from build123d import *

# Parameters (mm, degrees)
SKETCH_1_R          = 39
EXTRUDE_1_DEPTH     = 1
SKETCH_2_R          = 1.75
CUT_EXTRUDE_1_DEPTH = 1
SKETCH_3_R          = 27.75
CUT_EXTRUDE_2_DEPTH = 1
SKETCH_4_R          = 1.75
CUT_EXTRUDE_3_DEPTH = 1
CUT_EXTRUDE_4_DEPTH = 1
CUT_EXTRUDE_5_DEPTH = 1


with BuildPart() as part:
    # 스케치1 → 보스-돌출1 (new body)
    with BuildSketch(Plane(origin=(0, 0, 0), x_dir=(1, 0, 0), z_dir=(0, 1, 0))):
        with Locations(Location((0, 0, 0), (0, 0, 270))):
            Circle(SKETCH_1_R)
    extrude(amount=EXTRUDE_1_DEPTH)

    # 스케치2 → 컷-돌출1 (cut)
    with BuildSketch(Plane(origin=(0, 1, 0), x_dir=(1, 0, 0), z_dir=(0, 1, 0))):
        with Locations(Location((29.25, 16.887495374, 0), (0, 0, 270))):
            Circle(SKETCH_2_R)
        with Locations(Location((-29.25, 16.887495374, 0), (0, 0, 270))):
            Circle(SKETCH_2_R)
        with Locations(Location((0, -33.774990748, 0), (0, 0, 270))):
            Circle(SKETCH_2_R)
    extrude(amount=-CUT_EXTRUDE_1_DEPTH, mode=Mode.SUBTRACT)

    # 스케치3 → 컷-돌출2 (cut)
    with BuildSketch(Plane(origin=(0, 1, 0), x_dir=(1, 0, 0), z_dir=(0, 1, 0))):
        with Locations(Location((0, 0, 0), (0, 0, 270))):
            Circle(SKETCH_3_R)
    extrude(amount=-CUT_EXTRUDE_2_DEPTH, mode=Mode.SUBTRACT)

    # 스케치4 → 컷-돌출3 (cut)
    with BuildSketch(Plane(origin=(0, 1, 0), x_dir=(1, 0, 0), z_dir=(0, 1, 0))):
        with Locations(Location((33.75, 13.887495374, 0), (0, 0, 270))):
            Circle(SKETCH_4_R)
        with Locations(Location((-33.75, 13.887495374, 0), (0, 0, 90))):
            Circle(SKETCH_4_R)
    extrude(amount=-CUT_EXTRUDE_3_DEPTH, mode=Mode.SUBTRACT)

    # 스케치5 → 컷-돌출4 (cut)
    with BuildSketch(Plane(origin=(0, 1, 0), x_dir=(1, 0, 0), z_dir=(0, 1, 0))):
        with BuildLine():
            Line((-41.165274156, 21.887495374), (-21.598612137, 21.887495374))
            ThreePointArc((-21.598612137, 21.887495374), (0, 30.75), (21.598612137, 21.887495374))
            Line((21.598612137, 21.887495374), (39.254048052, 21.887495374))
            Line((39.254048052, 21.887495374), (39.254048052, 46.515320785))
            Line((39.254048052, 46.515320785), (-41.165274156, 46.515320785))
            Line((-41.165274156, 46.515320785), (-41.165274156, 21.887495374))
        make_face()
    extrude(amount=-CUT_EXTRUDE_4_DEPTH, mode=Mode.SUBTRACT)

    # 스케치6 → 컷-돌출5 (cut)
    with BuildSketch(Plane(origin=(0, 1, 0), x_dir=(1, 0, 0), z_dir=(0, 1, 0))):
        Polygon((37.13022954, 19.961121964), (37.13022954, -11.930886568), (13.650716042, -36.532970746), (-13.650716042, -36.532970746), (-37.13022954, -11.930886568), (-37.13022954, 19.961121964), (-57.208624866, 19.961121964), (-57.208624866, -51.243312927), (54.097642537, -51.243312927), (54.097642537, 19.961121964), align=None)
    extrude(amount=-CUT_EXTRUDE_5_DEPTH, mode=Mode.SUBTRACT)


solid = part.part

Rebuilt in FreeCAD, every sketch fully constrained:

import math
import FreeCAD as App
import Part
import Sketcher


def add_polygon(sketch, points):
    """Adds a closed chain of lines whose ends are joined by coincident constraints."""
    first, n = sketch.GeometryCount, len(points)
    for a, b in zip(points, points[1:] + points[:1]):
        sketch.addGeometry(Part.LineSegment(App.Vector(*a, 0), App.Vector(*b, 0)), False)
    for i in range(n):
        sketch.addConstraint(Sketcher.Constraint("Coincident", first + i, 2, first + (i + 1) % n, 1))

doc = App.newDocument("Part")
body = doc.addObject("PartDesign::Body", "Body")

sketch1 = body.newObject("Sketcher::SketchObject", "Sketch")
sketch1.AttachmentSupport = (doc.getObject("XZ_Plane"), [""])
sketch1.MapMode = "FlatFace"
sketch1.addGeometry(Part.Circle(App.Vector(0, 0, 0), App.Vector(0, 0, 1), 39), False)
sketch1.addConstraint([
    Sketcher.Constraint("Coincident", 0, 3, -1, 1),
    Sketcher.Constraint("Diameter", 0, 78.0),
])
pad1 = body.newObject("PartDesign::Pad", "Pad")
pad1.Profile = sketch1
pad1.Length = 1
pad1.Reversed = True

sketch2 = body.newObject("Sketcher::SketchObject", "Sketch001")
sketch2.AttachmentSupport = (doc.getObject("XZ_Plane"), [""])
sketch2.MapMode = "FlatFace"
sketch2.AttachmentOffset = App.Placement(App.Vector(0, 0, -1), App.Rotation())
sketch2.addGeometry([
    Part.Circle(App.Vector(29.25, -16.887495, 0), App.Vector(0, 0, 1), 1.75),
    Part.Circle(App.Vector(-29.25, -16.887495, 0), App.Vector(0, 0, 1), 1.75),
    Part.Circle(App.Vector(0, 33.774991, 0), App.Vector(0, 0, 1), 1.75),
], False)
sketch2.addConstraint([
    Sketcher.Constraint("Equal", 0, 1),
    Sketcher.Constraint("Equal", 1, 2),
    Sketcher.Constraint("Symmetric", 0, 3, 1, 3, -2),
    Sketcher.Constraint("PointOnObject", 2, 3, -2),
    Sketcher.Constraint("Diameter", 0, 3.5),
    Sketcher.Constraint("DistanceX", 1, 3, 0, 3, 58.5),
    Sketcher.Constraint("DistanceY", -1, 1, 2, 3, 33.774991),
    Sketcher.Constraint("DistanceY", 0, 3, -1, 1, 16.887495),
])
pocket1 = body.newObject("PartDesign::Pocket", "Pocket")
pocket1.Profile = sketch2
pocket1.Length = 1
pocket1.Reversed = True

sketch3 = body.newObject("Sketcher::SketchObject", "Sketch002")
sketch3.AttachmentSupport = (doc.getObject("XZ_Plane"), [""])
sketch3.MapMode = "FlatFace"
sketch3.AttachmentOffset = App.Placement(App.Vector(0, 0, -1), App.Rotation())
sketch3.addGeometry(Part.Circle(App.Vector(0, 0, 0), App.Vector(0, 0, 1), 27.75), False)
sketch3.addConstraint([
    Sketcher.Constraint("Coincident", 0, 3, -1, 1),
    Sketcher.Constraint("Diameter", 0, 55.5),
])
pocket2 = body.newObject("PartDesign::Pocket", "Pocket001")
pocket2.Profile = sketch3
pocket2.Length = 1
pocket2.Reversed = True

sketch4 = body.newObject("Sketcher::SketchObject", "Sketch003")
sketch4.AttachmentSupport = (doc.getObject("XZ_Plane"), [""])
sketch4.MapMode = "FlatFace"
sketch4.AttachmentOffset = App.Placement(App.Vector(0, 0, -1), App.Rotation())
sketch4.addGeometry([
    Part.Circle(App.Vector(33.75, -13.887495, 0), App.Vector(0, 0, 1), 1.75),
    Part.Circle(App.Vector(-33.75, -13.887495, 0), App.Vector(0, 0, 1), 1.75),
], False)
sketch4.addConstraint([
    Sketcher.Constraint("Equal", 0, 1),
    Sketcher.Constraint("Symmetric", 0, 3, 1, 3, -2),
    Sketcher.Constraint("Diameter", 0, 3.5),
    Sketcher.Constraint("DistanceX", 1, 3, 0, 3, 67.5),
    Sketcher.Constraint("DistanceY", 0, 3, -1, 1, 13.887495),
])
pocket3 = body.newObject("PartDesign::Pocket", "Pocket002")
pocket3.Profile = sketch4
pocket3.Length = 1
pocket3.Reversed = True

sketch5 = body.newObject("Sketcher::SketchObject", "Sketch004")
sketch5.AttachmentSupport = (doc.getObject("XZ_Plane"), [""])
sketch5.MapMode = "FlatFace"
sketch5.AttachmentOffset = App.Placement(App.Vector(0, 0, -1), App.Rotation())
sketch5.addGeometry([
    Part.LineSegment(App.Vector(-41.165274, -21.887495, 0), App.Vector(-21.598612, -21.887495, 0)),
    Part.ArcOfCircle(Part.Circle(App.Vector(0, 0, 0), App.Vector(0, 0, 1), 30.75), math.radians(-134.619383), math.radians(-45.380617)),
    Part.LineSegment(App.Vector(21.598612, -21.887495, 0), App.Vector(39.254048, -21.887495, 0)),
    Part.LineSegment(App.Vector(39.254048, -21.887495, 0), App.Vector(39.254048, -46.515321, 0)),
    Part.LineSegment(App.Vector(39.254048, -46.515321, 0), App.Vector(-41.165274, -46.515321, 0)),
    Part.LineSegment(App.Vector(-41.165274, -46.515321, 0), App.Vector(-41.165274, -21.887495, 0)),
], False)
sketch5.addConstraint([
    Sketcher.Constraint("Coincident", 0, 2, 1, 1),
    Sketcher.Constraint("Coincident", 1, 2, 2, 1),
    Sketcher.Constraint("Coincident", 2, 2, 3, 1),
    Sketcher.Constraint("Coincident", 3, 2, 4, 1),
    Sketcher.Constraint("Coincident", 4, 2, 5, 1),
    Sketcher.Constraint("Coincident", 5, 2, 0, 1),
    Sketcher.Constraint("Horizontal", 0),
    Sketcher.Constraint("Horizontal", 2),
    Sketcher.Constraint("Vertical", 3),
    Sketcher.Constraint("Horizontal", 4),
    Sketcher.Constraint("Vertical", 5),
    Sketcher.Constraint("Coincident", 1, 3, -1, 1),
    Sketcher.Constraint("Horizontal", 0, 2, 1, 2),
    Sketcher.Constraint("Radius", 1, 30.75),
    Sketcher.Constraint("DistanceX", 0, 1, 0, 2, 19.566662),
    Sketcher.Constraint("DistanceX", 2, 1, 2, 2, 17.655436),
    Sketcher.Constraint("DistanceX", 4, 2, 4, 1, 80.419322),
    Sketcher.Constraint("DistanceY", 3, 2, 3, 1, 24.627825),
])
pocket4 = body.newObject("PartDesign::Pocket", "Pocket003")
pocket4.Profile = sketch5
pocket4.Length = 1
pocket4.Reversed = True

sketch6 = body.newObject("Sketcher::SketchObject", "Sketch005")
sketch6.AttachmentSupport = (doc.getObject("XZ_Plane"), [""])
sketch6.MapMode = "FlatFace"
sketch6.AttachmentOffset = App.Placement(App.Vector(0, 0, -1), App.Rotation())
add_polygon(sketch6, [(37.13023, -19.961122), (37.13023, 11.930887), (13.650716, 36.532971), (-13.650716, 36.532971), (-37.13023, 11.930887), (-37.13023, -19.961122), (-57.208625, -19.961122), (-57.208625, 51.243313), (54.097643, 51.243313), (54.097643, -19.961122)])
sketch6.addConstraint([
    Sketcher.Constraint("Vertical", 0),
    Sketcher.Constraint("Horizontal", 2),
    Sketcher.Constraint("Vertical", 4),
    Sketcher.Constraint("Horizontal", 5),
    Sketcher.Constraint("Vertical", 6),
    Sketcher.Constraint("Horizontal", 7),
    Sketcher.Constraint("Vertical", 8),
    Sketcher.Constraint("Horizontal", 9),
    Sketcher.Constraint("Symmetric", 0, 2, 3, 2, -2),
    Sketcher.Constraint("Horizontal", 5, 2, 8, 2),
    Sketcher.Constraint("Equal", 1, 3),
    Sketcher.Constraint("DistanceY", 0, 1, 0, 2, 31.892009),
    Sketcher.Constraint("Distance", 1, 34.008089),
    Sketcher.Constraint("DistanceX", 2, 2, 2, 1, 27.301432),
    Sketcher.Constraint("DistanceX", 5, 2, 5, 1, 20.078395),
    Sketcher.Constraint("DistanceX", 7, 1, 7, 2, 111.306267),
    Sketcher.Constraint("DistanceX", 9, 2, 9, 1, 16.967413),
    Sketcher.Constraint("DistanceY", 6, 1, 6, 2, 71.204435),
    Sketcher.Constraint("DistanceY", -1, 1, 1, 2, 36.532971),
])
pocket5 = body.newObject("PartDesign::Pocket", "Pocket004")
pocket5.Profile = sketch6
pocket5.Length = 1
pocket5.Reversed = True

doc.recompute()
